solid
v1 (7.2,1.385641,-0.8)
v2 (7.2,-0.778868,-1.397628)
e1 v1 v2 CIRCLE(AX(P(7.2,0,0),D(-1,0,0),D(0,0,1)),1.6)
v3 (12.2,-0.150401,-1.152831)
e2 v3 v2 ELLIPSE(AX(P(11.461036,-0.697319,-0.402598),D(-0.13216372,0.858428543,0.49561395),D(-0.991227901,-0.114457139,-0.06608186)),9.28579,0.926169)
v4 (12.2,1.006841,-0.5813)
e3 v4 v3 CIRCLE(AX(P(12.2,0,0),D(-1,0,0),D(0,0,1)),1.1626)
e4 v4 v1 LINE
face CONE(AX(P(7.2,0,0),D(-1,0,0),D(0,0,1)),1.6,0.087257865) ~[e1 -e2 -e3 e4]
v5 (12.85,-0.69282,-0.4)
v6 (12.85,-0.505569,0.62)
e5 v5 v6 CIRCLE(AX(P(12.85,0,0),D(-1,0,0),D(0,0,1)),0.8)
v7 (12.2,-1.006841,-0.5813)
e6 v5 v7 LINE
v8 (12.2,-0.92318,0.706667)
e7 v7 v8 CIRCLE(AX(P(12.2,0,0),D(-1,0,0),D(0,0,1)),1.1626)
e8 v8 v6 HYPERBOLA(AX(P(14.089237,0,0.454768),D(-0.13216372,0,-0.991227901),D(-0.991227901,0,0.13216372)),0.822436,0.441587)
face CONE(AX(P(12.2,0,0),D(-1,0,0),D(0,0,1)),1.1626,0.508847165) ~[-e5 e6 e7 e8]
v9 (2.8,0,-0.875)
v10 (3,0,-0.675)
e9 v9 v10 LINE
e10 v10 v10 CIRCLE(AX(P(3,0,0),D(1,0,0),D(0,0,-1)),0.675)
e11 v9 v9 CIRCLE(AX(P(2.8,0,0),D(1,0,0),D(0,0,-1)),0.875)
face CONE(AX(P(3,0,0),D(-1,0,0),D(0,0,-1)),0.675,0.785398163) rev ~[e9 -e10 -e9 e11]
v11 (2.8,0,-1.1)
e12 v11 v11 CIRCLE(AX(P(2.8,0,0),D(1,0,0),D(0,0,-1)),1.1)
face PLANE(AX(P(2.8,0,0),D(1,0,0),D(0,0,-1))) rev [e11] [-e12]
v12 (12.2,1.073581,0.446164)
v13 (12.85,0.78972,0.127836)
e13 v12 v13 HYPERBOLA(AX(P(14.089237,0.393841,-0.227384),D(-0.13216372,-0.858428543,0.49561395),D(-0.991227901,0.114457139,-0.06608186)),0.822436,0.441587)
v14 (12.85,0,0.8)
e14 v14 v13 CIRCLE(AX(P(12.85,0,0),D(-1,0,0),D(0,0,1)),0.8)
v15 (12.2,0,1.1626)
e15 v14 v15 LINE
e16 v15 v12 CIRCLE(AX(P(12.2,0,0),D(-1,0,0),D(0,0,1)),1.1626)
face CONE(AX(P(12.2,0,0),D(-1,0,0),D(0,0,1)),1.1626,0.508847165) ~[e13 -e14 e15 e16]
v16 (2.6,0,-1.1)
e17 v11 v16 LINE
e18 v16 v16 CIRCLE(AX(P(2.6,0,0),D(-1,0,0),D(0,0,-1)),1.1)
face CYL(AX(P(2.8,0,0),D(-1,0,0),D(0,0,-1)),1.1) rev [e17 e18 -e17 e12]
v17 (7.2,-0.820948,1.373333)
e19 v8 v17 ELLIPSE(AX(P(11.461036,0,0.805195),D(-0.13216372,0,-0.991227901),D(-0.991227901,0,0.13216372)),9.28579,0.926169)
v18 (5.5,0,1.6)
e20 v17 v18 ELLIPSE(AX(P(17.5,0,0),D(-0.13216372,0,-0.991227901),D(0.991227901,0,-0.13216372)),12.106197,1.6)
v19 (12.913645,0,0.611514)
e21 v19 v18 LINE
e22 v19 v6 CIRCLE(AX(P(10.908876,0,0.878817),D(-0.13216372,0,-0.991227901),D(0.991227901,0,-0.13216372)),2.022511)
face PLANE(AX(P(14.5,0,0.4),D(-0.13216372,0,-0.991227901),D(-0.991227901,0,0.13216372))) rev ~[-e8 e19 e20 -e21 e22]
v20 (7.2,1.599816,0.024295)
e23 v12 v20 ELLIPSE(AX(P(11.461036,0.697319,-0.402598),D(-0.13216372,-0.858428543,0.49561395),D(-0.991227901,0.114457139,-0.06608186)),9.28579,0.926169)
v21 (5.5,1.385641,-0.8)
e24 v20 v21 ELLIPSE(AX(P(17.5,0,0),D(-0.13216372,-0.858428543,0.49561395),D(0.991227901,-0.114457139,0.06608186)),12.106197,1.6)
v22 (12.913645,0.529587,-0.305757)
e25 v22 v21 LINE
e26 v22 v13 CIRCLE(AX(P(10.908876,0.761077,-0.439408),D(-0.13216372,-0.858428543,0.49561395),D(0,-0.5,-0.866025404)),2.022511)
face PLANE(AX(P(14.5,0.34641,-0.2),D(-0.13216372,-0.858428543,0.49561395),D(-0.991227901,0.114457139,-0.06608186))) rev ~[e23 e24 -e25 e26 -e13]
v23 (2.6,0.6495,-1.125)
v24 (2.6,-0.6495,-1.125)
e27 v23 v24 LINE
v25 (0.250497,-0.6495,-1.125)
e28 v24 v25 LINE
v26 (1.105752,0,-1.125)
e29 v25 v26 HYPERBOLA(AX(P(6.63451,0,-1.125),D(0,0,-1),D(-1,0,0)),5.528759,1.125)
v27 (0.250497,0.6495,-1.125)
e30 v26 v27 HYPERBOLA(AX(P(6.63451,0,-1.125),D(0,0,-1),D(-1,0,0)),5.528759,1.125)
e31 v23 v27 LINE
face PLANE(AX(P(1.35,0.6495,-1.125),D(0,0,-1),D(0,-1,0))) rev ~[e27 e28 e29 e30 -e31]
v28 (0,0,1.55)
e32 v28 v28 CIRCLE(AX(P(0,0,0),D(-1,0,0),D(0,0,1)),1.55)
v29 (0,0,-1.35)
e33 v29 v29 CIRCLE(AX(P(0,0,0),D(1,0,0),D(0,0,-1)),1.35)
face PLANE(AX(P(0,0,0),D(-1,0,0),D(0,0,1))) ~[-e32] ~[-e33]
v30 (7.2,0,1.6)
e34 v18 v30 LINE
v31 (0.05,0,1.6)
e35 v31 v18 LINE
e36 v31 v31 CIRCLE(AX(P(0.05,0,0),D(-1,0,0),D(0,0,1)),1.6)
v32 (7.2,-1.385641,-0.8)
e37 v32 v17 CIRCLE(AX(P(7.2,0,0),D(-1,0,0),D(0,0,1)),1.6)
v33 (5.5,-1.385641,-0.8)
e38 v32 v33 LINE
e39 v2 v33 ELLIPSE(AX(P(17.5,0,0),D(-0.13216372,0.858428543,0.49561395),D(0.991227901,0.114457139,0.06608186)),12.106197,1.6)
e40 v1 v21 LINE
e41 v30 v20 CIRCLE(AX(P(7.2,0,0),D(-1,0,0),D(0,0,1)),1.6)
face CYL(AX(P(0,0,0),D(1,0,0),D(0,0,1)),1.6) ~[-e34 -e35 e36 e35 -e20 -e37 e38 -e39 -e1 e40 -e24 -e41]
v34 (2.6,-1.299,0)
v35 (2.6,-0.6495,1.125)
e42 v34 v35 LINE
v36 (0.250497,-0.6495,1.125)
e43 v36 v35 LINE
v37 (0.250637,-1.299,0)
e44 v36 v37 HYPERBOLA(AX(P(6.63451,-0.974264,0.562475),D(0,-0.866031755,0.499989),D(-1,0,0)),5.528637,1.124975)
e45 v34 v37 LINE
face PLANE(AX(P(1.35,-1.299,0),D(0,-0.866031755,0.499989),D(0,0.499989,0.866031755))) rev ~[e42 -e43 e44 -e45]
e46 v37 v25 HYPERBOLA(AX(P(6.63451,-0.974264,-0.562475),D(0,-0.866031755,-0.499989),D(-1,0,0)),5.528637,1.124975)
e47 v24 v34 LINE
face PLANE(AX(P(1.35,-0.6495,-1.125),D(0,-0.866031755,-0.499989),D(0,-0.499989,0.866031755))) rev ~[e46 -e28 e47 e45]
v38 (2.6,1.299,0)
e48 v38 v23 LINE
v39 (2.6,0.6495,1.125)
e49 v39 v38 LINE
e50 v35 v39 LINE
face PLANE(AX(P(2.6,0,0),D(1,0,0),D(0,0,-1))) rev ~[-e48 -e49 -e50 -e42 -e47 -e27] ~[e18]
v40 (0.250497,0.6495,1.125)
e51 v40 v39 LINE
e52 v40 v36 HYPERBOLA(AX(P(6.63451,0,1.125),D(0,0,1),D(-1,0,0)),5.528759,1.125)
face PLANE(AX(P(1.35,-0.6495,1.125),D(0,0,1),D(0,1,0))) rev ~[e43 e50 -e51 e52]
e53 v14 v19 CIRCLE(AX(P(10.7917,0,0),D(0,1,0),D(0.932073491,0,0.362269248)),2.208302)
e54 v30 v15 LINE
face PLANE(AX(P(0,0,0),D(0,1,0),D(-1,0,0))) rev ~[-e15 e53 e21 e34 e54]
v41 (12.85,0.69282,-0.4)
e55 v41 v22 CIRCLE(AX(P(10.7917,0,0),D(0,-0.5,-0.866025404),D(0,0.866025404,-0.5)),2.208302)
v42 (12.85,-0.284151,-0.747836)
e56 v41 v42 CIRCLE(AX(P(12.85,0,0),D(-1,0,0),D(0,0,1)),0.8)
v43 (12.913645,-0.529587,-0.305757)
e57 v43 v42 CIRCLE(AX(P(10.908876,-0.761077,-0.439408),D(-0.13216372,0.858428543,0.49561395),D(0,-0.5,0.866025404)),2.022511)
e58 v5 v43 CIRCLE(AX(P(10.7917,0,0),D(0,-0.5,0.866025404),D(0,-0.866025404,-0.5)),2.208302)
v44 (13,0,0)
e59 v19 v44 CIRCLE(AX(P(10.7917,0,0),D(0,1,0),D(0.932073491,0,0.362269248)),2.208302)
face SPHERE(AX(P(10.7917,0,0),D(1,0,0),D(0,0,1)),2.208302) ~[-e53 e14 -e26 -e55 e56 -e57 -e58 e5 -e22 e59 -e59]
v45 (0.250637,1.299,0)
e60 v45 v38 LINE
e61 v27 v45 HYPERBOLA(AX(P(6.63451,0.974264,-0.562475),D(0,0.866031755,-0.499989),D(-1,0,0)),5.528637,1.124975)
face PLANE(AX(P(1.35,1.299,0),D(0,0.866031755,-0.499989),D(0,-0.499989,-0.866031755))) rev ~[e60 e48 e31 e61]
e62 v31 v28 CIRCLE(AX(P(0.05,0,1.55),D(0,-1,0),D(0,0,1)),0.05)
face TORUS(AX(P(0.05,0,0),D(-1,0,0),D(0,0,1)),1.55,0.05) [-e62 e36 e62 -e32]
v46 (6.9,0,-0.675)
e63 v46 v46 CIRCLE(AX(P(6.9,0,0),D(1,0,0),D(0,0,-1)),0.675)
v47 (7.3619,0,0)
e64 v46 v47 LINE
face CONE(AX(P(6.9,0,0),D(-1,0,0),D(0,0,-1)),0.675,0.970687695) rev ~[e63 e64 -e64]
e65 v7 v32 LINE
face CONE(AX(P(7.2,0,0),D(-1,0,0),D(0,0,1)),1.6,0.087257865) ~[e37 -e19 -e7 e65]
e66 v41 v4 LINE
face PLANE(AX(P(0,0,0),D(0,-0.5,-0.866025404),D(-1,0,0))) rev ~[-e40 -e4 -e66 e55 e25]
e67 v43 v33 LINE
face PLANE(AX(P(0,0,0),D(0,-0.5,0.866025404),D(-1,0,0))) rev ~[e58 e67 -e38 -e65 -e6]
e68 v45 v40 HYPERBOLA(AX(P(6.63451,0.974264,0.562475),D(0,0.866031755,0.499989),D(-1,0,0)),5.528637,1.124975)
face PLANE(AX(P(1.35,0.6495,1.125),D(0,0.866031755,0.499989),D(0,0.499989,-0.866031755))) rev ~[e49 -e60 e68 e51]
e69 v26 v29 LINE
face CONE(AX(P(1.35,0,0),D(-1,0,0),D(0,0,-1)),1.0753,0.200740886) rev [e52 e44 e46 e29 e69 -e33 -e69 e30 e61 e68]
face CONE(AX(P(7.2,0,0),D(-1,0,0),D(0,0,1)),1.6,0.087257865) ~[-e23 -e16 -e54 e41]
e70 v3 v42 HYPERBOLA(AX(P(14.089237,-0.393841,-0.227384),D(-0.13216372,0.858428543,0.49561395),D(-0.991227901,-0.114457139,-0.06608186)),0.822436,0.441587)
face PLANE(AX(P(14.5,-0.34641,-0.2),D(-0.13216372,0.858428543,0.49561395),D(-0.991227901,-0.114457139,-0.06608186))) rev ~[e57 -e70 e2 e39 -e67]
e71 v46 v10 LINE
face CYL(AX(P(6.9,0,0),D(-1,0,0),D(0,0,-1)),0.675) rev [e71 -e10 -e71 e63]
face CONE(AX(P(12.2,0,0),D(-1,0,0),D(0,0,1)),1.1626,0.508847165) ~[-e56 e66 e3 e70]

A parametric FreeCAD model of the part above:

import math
import FreeCAD as App
import Part
import Sketcher
Q = App.Units.Quantity


def edges_at(feature, points):
    """Names of the edges that pass closest to the given points."""
    edges = feature.Shape.Edges
    near = lambda p: min(range(len(edges)), key=lambda i: edges[i].distToShape(Part.Vertex(*p))[0])
    return sorted({f"Edge{near(p) + 1}" for p in points})


def add_polygon(sketch, points):
    """Adds a closed chain of lines whose ends are joined by coincident constraints."""
    first, n = sketch.GeometryCount, len(points)
    for a, b in zip(points, points[1:] + points[:1]):
        sketch.addGeometry(Part.LineSegment(App.Vector(*a, 0), App.Vector(*b, 0)), False)
    for i in range(n):
        sketch.addConstraint(Sketcher.Constraint("Coincident", first + i, 2, first + (i + 1) % n, 1))

doc = App.newDocument("Part")
body = doc.addObject("PartDesign::Body", "Body")

sketch1 = body.newObject("Sketcher::SketchObject", "Sketch")
sketch1.AttachmentSupport = (doc.getObject("XZ_Plane"), [""])
sketch1.MapMode = "FlatFace"
sketch1.addGeometry([
    Part.LineSegment(App.Vector(0, 0, 0), App.Vector(0, 1.6, 0)),
    Part.LineSegment(App.Vector(0, 1.6, 0), App.Vector(7.2, 1.6, 0)),
    Part.LineSegment(App.Vector(7.2, 1.6, 0), App.Vector(12.2, 1.2, 0)),
    Part.LineSegment(App.Vector(12.2, 1.2, 0), App.Vector(12.8, 0.8, 0)),
    Part.ArcOfCircle(Part.Circle(App.Vector(10.8, 0, 0), App.Vector(0, 0, 1), 2.2), math.radians(0), math.radians(21)),
    Part.LineSegment(App.Vector(13, 0, 0), App.Vector(0, 0, 0)),
], False)
sketch1.addConstraint([
    Sketcher.Constraint("Coincident", 0, 2, 1, 1),
    Sketcher.Constraint("Coincident", 1, 2, 2, 1),
    Sketcher.Constraint("Coincident", 2, 2, 3, 1),
    Sketcher.Constraint("Coincident", 3, 2, 4, 2),
    Sketcher.Constraint("Coincident", 4, 1, 5, 1),
    Sketcher.Constraint("Coincident", 5, 2, 0, 1),
    Sketcher.Constraint("Vertical", 0),
    Sketcher.Constraint("Horizontal", 1),
    Sketcher.Constraint("Horizontal", 5),
    Sketcher.Constraint("Coincident", 5, 2, -1, 1),
    Sketcher.Constraint("PointOnObject", 4, 3, -1),
    Sketcher.Constraint("Angle", 2, Q("-4.9995 deg")),
    Sketcher.Constraint("DistanceX", 1, 1, 1, 2, 7.2),
    Sketcher.Constraint("DistanceY", 0, 1, 0, 2, 1.6),
    Sketcher.Constraint("DistanceX", 1, 2, 2, 2, 5.0),
    Sketcher.Constraint("DistanceY", -1, 1, 3, 2, 0.8),
    Sketcher.Constraint("DistanceX", 2, 2, 4, 1, 0.8),
    Sketcher.Constraint("DistanceX", 2, 2, 3, 2, 0.65),
])
revolution = body.newObject("PartDesign::Revolution", "Revolution")
revolution.Profile = sketch1
revolution.ReferenceAxis = (sketch1, ["H_Axis"])
revolution.Angle = 360

sketch2 = body.newObject("Sketcher::SketchObject", "Sketch001")
sketch2.AttachmentSupport = (doc.getObject("XZ_Plane"), [""])
sketch2.MapMode = "FlatFace"
add_polygon(sketch2, [(1.35, -1.075), (0, -1.35), (0, 0), (7.362, 0), (6.9, -0.675), (2.8, -0.675), (2.8, -1.1), (1.35, -1.1)])
sketch2.addConstraint([
    Sketcher.Constraint("Vertical", 1),
    Sketcher.Constraint("Horizontal", 2),
    Sketcher.Constraint("Horizontal", 4),
    Sketcher.Constraint("Vertical", 5),
    Sketcher.Constraint("Horizontal", 6),
    Sketcher.Constraint("Vertical", 7),
    Sketcher.Constraint("Coincident", 1, 2, -1, 1),
    Sketcher.Constraint("DistanceX", 6, 2, 6, 1, 1.45),
    Sketcher.Constraint("DistanceY", 1, 1, 1, 2, 1.35),
    Sketcher.Constraint("DistanceX", -1, 1, 3, 2, 6.9),
    Sketcher.Constraint("DistanceY", 5, 2, -1, 1, 1.1),
    Sketcher.Constraint("DistanceX", -1, 1, 6, 2, 1.35),
    Sketcher.Constraint("DistanceY", 3, 2, -1, 1, 0.675),
    Sketcher.Constraint("DistanceX", 3, 2, 2, 2, 0.462),
    Sketcher.Constraint("DistanceY", 7, 1, 7, 2, 0.0247),
])
groove = body.newObject("PartDesign::Groove", "Groove")
groove.Profile = sketch2
groove.ReferenceAxis = (sketch2, ["H_Axis"])
groove.Angle = 360

sketch3 = body.newObject("Sketcher::SketchObject", "Sketch002")
sketch3.AttachmentSupport = (doc.getObject("YZ_Plane"), [""])
sketch3.MapMode = "FlatFace"
sketch3.AttachmentOffset = App.Placement(App.Vector(0, 0, 1.35), App.Rotation())
add_polygon(sketch3, [(0.6, -1.1), (1.3, 0), (0.6, 1.1), (-0.6, 1.1), (-1.3, 0), (-0.6, -1.1)])
sketch3.addConstraint([
    Sketcher.Constraint("Horizontal", 2),
    Sketcher.Constraint("Horizontal", 5),
    Sketcher.Constraint("Symmetric", 0, 2, 3, 2, -1, 1),
    Sketcher.Constraint("Symmetric", 1, 2, 4, 2, -1, 1),
    Sketcher.Constraint("PointOnObject", 0, 2, -1),
    Sketcher.Constraint("Parallel", 0, 3),
    Sketcher.Constraint("Vertical", 2, 2, 4, 2),
    Sketcher.Constraint("Angle", 0, Q("60.0007 deg")),
    Sketcher.Constraint("DistanceY", 4, 2, 2, 2, 2.25),
    Sketcher.Constraint("DistanceX", 2, 2, 2, 1, 1.299),
])
pocket1 = body.newObject("PartDesign::Pocket", "Pocket")
pocket1.Profile = sketch3
pocket1.Type = "TwoLengths"
pocket1.Length = 1.25
pocket1.Length2 = 2
pocket1.Reversed = True
doc.recompute()

fillet = body.newObject("PartDesign::Fillet", "Fillet")
fillet.Base = (pocket1, edges_at(pocket1, [(0, 0, -1.6)]))
fillet.Radius = 0.05

sketch4 = body.newObject("Sketcher::SketchObject", "Sketch003")
sketch4.AttachmentSupport = (doc.getObject("XZ_Plane"), [""])
sketch4.MapMode = "FlatFace"
add_polygon(sketch4, [(5.5, 1.6), (14.5, 1.6), (14.5, 0.4)])
sketch4.addConstraint([
    Sketcher.Constraint("Horizontal", 0),
    Sketcher.Constraint("Vertical", 1),
    Sketcher.Constraint("DistanceX", 0, 1, 0, 2, 9.0),
    Sketcher.Constraint("DistanceY", 1, 2, 1, 1, 1.2),
    Sketcher.Constraint("DistanceX", -1, 1, 2, 2, 5.5),
    Sketcher.Constraint("DistanceY", -1, 1, 0, 2, 1.6),
])
pocket2 = body.newObject("PartDesign::Pocket", "Pocket001")
pocket2.Profile = sketch4
pocket2.Length = 2
pocket2.Reversed = True
doc.recompute()

polarpattern = body.newObject("PartDesign::PolarPattern", "PolarPattern")
polarpattern.Originals = [pocket2]
polarpattern.Axis = (doc.getObject("X_Axis"), [""])
polarpattern.Angle = 360
polarpattern.Occurrences = 3
body.Tip = polarpattern
doc.recompute()

chamfer = body.newObject("PartDesign::Chamfer", "Chamfer")
chamfer.Base = (polarpattern, edges_at(polarpattern, [(2.8, 0, 0.675)]))
chamfer.Size = 0.2

doc.recompute()
